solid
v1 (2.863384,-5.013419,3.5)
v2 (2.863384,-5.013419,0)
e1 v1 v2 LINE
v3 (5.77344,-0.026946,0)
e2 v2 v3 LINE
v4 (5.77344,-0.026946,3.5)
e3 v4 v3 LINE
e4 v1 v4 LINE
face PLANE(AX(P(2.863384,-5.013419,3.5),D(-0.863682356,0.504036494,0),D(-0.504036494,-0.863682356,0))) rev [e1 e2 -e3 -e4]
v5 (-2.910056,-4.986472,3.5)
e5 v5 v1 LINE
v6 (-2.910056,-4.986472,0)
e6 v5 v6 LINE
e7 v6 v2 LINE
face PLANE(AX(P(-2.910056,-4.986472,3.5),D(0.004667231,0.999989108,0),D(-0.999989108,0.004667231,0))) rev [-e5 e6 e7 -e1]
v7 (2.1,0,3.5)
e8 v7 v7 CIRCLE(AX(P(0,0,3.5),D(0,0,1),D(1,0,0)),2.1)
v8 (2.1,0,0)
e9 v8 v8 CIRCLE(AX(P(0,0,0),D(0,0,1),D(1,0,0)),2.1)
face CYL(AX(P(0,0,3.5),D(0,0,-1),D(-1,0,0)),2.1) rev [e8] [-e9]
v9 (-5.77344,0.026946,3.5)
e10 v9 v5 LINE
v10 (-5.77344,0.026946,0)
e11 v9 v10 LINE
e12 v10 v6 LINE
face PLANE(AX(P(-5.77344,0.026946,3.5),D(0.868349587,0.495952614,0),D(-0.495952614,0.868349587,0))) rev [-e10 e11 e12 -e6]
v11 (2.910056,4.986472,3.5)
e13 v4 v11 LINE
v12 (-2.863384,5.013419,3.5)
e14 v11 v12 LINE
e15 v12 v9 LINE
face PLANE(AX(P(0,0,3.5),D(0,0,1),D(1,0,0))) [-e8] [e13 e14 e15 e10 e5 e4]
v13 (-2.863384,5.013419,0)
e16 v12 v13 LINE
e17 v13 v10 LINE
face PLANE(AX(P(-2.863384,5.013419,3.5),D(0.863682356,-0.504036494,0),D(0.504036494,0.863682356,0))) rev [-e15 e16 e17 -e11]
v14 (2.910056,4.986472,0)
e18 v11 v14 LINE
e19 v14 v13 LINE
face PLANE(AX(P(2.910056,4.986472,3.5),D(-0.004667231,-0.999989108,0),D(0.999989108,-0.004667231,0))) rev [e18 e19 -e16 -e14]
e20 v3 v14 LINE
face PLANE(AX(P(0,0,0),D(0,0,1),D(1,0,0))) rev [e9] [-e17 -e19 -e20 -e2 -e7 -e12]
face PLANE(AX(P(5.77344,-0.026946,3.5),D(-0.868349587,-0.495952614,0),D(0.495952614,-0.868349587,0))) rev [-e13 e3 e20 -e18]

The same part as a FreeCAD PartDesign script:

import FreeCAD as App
import Part
import Sketcher
from FreeCAD import Vector
Q = App.Units.Quantity


def add_polygon(sketch, points):
    """Adds a closed chain of lines whose ends are joined by coincident constraints."""
    first, n = sketch.GeometryCount, len(points)
    for a, b in zip(points, points[1:] + points[:1]):
        sketch.addGeometry(Part.LineSegment(App.Vector(*a, 0), App.Vector(*b, 0)), False)
    for i in range(n):
        sketch.addConstraint(Sketcher.Constraint("Coincident", first + i, 2, first + (i + 1) % n, 1))

doc = App.newDocument("Part")
body = doc.addObject("PartDesign::Body", "Body")

sketch1 = body.newObject("Sketcher::SketchObject", "Sketch")
sketch1.AttachmentSupport = (doc.getObject("XY_Plane"), [""])
sketch1.MapMode = "FlatFace"
add_polygon(sketch1, [(-2.9, 5), (-5.8, 0), (-2.9, -5), (2.9, -5), (5.8, 0), (2.9, 5)])
sketch1.addGeometry(Part.Circle(Vector(0, 0, 0), Vector(0, 0, 1), 2.1), False)
sketch1.addConstraint([
    Sketcher.Constraint("Coincident", 6, 3, -1, 1),
    Sketcher.Constraint("Symmetric", 0, 2, 3, 2, -1, 1),
    Sketcher.Constraint("Symmetric", 1, 2, 4, 2, -1, 1),
    Sketcher.Constraint("Symmetric", 2, 2, 5, 2, -1, 1),
    Sketcher.Constraint("Equal", 0, 1),
    Sketcher.Constraint("Equal", 1, 2),
    Sketcher.Constraint("Diameter", 6, Q("4.2 mm")),
    Sketcher.Constraint("DistanceX", 0, 2, -1, 1, Q("5.77344 mm")),
    Sketcher.Constraint("DistanceY", 2, 2, -1, 1, Q("5.013419 mm")),
    Sketcher.Constraint("DistanceY", 1, 2, 0, 2, Q("5.013419 mm")),
    Sketcher.Constraint("DistanceX", 1, 2, 2, 2, Q("5.77344 mm")),
])
pad1 = body.newObject("PartDesign::Pad", "Pad")
pad1.Profile = sketch1
pad1.Length = 3.5

doc.recompute()
